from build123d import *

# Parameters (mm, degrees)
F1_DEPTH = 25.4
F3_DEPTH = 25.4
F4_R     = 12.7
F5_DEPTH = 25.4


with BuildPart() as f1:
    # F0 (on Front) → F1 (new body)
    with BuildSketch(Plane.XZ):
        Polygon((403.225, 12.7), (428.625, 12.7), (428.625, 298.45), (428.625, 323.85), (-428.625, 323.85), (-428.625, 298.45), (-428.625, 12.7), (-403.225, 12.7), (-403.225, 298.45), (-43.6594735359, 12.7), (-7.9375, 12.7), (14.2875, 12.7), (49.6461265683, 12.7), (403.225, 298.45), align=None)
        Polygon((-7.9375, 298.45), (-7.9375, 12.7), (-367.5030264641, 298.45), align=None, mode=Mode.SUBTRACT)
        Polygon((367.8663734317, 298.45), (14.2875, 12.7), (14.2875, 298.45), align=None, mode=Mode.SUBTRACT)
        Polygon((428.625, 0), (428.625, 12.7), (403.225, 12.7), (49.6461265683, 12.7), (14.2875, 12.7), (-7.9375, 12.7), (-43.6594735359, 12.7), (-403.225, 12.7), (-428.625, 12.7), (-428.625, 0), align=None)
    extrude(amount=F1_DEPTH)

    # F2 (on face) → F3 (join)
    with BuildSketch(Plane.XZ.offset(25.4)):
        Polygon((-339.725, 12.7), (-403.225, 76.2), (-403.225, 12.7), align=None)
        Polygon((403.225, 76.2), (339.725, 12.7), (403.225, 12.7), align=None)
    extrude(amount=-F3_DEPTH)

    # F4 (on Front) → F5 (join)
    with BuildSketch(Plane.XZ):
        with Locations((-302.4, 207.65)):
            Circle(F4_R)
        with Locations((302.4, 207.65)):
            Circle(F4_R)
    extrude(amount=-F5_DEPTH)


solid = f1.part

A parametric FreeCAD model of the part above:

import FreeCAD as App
import Part
import Sketcher
from FreeCAD import Vector
Q = App.Units.Quantity

doc = App.newDocument("Part")
body = doc.addObject("PartDesign::Body", "Body")

# Sketch on XZ plane
sketch1 = body.newObject("Sketcher::SketchObject", "Sketch")
sketch1.AttachmentSupport = (doc.getObject("XZ_Plane"), [""])
sketch1.MapMode = "FlatFace"
sketch1.addGeometry(Part.LineSegment(Vector(-429, 324, 0), Vector(-429, 0, 0)), False)
sketch1.addGeometry(Part.LineSegment(Vector(-429, 0, 0), Vector(429, 0, 0)), False)
sketch1.addGeometry(Part.LineSegment(Vector(429, 0, 0), Vector(429, 324, 0)), False)
sketch1.addGeometry(Part.LineSegment(Vector(429, 324, 0), Vector(-429, 324, 0)), False)
sketch1.addGeometry(Part.LineSegment(Vector(-403, 298, 0), Vector(-44, 13, 0)), False)
sketch1.addGeometry(Part.LineSegment(Vector(-44, 13, 0), Vector(-403, 13, 0)), False)
sketch1.addGeometry(Part.LineSegment(Vector(-403, 13, 0), Vector(-403, 298, 0)), False)
sketch1.addGeometry(Part.LineSegment(Vector(403, 298, 0), Vector(403, 13, 0)), False)
sketch1.addGeometry(Part.LineSegment(Vector(403, 13, 0), Vector(50, 13, 0)), False)
sketch1.addGeometry(Part.LineSegment(Vector(50, 13, 0), Vector(403, 298, 0)), False)
sketch1.addGeometry(Part.LineSegment(Vector(-8, 298, 0), Vector(-8, 13, 0)), False)
sketch1.addGeometry(Part.LineSegment(Vector(-8, 13, 0), Vector(-368, 298, 0)), False)
sketch1.addGeometry(Part.LineSegment(Vector(-368, 298, 0), Vector(-8, 298, 0)), False)
sketch1.addGeometry(Part.LineSegment(Vector(368, 298, 0), Vector(14, 13, 0)), False)
sketch1.addGeometry(Part.LineSegment(Vector(14, 13, 0), Vector(14, 298, 0)), False)
sketch1.addGeometry(Part.LineSegment(Vector(14, 298, 0), Vector(368, 298, 0)), False)
sketch1.addConstraint(Sketcher.Constraint("Coincident", 0, 2, 1, 1))
sketch1.addConstraint(Sketcher.Constraint("Coincident", 1, 2, 2, 1))
sketch1.addConstraint(Sketcher.Constraint("Coincident", 2, 2, 3, 1))
sketch1.addConstraint(Sketcher.Constraint("Coincident", 3, 2, 0, 1))
sketch1.addConstraint(Sketcher.Constraint("Coincident", 4, 2, 5, 1))
sketch1.addConstraint(Sketcher.Constraint("Coincident", 5, 2, 6, 1))
sketch1.addConstraint(Sketcher.Constraint("Coincident", 6, 2, 4, 1))
sketch1.addConstraint(Sketcher.Constraint("Coincident", 7, 2, 8, 1))
sketch1.addConstraint(Sketcher.Constraint("Coincident", 8, 2, 9, 1))
sketch1.addConstraint(Sketcher.Constraint("Coincident", 9, 2, 7, 1))
sketch1.addConstraint(Sketcher.Constraint("Coincident", 10, 2, 11, 1))
sketch1.addConstraint(Sketcher.Constraint("Coincident", 11, 2, 12, 1))
sketch1.addConstraint(Sketcher.Constraint("Coincident", 12, 2, 10, 1))
sketch1.addConstraint(Sketcher.Constraint("Coincident", 13, 2, 14, 1))
sketch1.addConstraint(Sketcher.Constraint("Coincident", 14, 2, 15, 1))
sketch1.addConstraint(Sketcher.Constraint("Coincident", 15, 2, 13, 1))
sketch1.addConstraint(Sketcher.Constraint("Vertical", 0))
sketch1.addConstraint(Sketcher.Constraint("Horizontal", 1))
sketch1.addConstraint(Sketcher.Constraint("Vertical", 2))
sketch1.addConstraint(Sketcher.Constraint("Horizontal", 3))
sketch1.addConstraint(Sketcher.Constraint("Horizontal", 5))
sketch1.addConstraint(Sketcher.Constraint("Vertical", 6))
sketch1.addConstraint(Sketcher.Constraint("Vertical", 7))
sketch1.addConstraint(Sketcher.Constraint("Horizontal", 8))
sketch1.addConstraint(Sketcher.Constraint("Vertical", 10))
sketch1.addConstraint(Sketcher.Constraint("Horizontal", 12))
sketch1.addConstraint(Sketcher.Constraint("Vertical", 14))
sketch1.addConstraint(Sketcher.Constraint("Horizontal", 15))
sketch1.addConstraint(Sketcher.Constraint("Symmetric", 0, 2, 1, 2, -1, 1))
sketch1.addConstraint(Sketcher.Constraint("Symmetric", 5, 2, 7, 2, -2))
sketch1.addConstraint(Sketcher.Constraint("Parallel", 4, 11))
sketch1.addConstraint(Sketcher.Constraint("Parallel", 9, 13))
sketch1.addConstraint(Sketcher.Constraint("Horizontal", 6, 2, 9, 2))
sketch1.addConstraint(Sketcher.Constraint("Horizontal", 8, 2, 10, 2))
sketch1.addConstraint(Sketcher.Constraint("Horizontal", 9, 2, 11, 2))
sketch1.addConstraint(Sketcher.Constraint("Horizontal", 10, 2, 13, 2))
sketch1.addConstraint(Sketcher.Constraint("Horizontal", 12, 2, 14, 2))
sketch1.addConstraint(Sketcher.Constraint("DistanceX", 0, 2, 5, 2, Q("1 in")))
sketch1.addConstraint(Sketcher.Constraint("DistanceY", 6, 2, 3, 2, Q("1 in")))
sketch1.addConstraint(Sketcher.Constraint("DistanceX", 1, 1, 1, 2, Q("33.75 in")))
sketch1.addConstraint(Sketcher.Constraint("DistanceY", 0, 2, 0, 1, Q("12.75 in")))
sketch1.addConstraint(Sketcher.Constraint("DistanceY", 6, 1, 6, 2, Q("11.25 in")))
sketch1.addConstraint(Sketcher.Constraint("DistanceX", 10, 2, -1, 1, Q("0.3125 in")))
sketch1.addConstraint(Sketcher.Constraint("DistanceX", -1, 1, 13, 2, Q("0.5625 in")))
sketch1.addConstraint(Sketcher.Constraint("DistanceX", 4, 2, 8, 2, Q("93.3056 mm")))
sketch1.addConstraint(Sketcher.Constraint("DistanceX", 5, 2, 5, 1, Q("359.565526 mm")))
pad1 = body.newObject("PartDesign::Pad", "Pad")
pad1.Profile = sketch1
pad1.Length = Q("1 in")

# Sketch on XZ plane
sketch2 = body.newObject("Sketcher::SketchObject", "Sketch001")
sketch2.AttachmentSupport = (doc.getObject("XZ_Plane"), [""])
sketch2.MapMode = "FlatFace"
sketch2.AttachmentOffset = App.Placement(Vector(0, 0, 1 * 25.4), App.Rotation())
sketch2.addGeometry(Part.LineSegment(Vector(-340, 13, 0), Vector(-403, 76, 0)), False)
sketch2.addGeometry(Part.LineSegment(Vector(-403, 76, 0), Vector(-403, 13, 0)), False)
sketch2.addGeometry(Part.LineSegment(Vector(-403, 13, 0), Vector(-340, 13, 0)), False)
sketch2.addGeometry(Part.LineSegment(Vector(403, 76, 0), Vector(340, 13, 0)), False)
sketch2.addGeometry(Part.LineSegment(Vector(340, 13, 0), Vector(403, 13, 0)), False)
sketch2.addGeometry(Part.LineSegment(Vector(403, 13, 0), Vector(403, 76, 0)), False)
sketch2.addConstraint(Sketcher.Constraint("Coincident", 0, 2, 1, 1))
sketch2.addConstraint(Sketcher.Constraint("Coincident", 1, 2, 2, 1))
sketch2.addConstraint(Sketcher.Constraint("Coincident", 2, 2, 0, 1))
sketch2.addConstraint(Sketcher.Constraint("Coincident", 3, 2, 4, 1))
sketch2.addConstraint(Sketcher.Constraint("Coincident", 4, 2, 5, 1))
sketch2.addConstraint(Sketcher.Constraint("Coincident", 5, 2, 3, 1))
sketch2.addConstraint(Sketcher.Constraint("Vertical", 1))
sketch2.addConstraint(Sketcher.Constraint("Horizontal", 2))
sketch2.addConstraint(Sketcher.Constraint("Horizontal", 4))
sketch2.addConstraint(Sketcher.Constraint("Vertical", 5))
sketch2.addConstraint(Sketcher.Constraint("Symmetric", 2, 2, 3, 2, -2))
sketch2.addConstraint(Sketcher.Constraint("Symmetric", 0, 2, 5, 2, -2))
sketch2.addConstraint(Sketcher.Constraint("Perpendicular", 0, 3))
sketch2.addConstraint(Sketcher.Constraint("DistanceX", 2, 1, 2, 2, Q("2.5 in")))
sketch2.addConstraint(Sketcher.Constraint("DistanceY", -1, 1, 0, 2, Q("3 in")))
sketch2.addConstraint(Sketcher.Constraint("DistanceX", 2, 2, 3, 2, Q("26.75 in")))
pad2 = body.newObject("PartDesign::Pad", "Pad001")
pad2.Profile = sketch2
pad2.Length = Q("1 in")
pad2.Reversed = True

# Sketch on XZ plane
sketch3 = body.newObject("Sketcher::SketchObject", "Sketch002")
sketch3.AttachmentSupport = (doc.getObject("XZ_Plane"), [""])
sketch3.MapMode = "FlatFace"
sketch3.addGeometry(Part.Circle(Vector(-302, 208, 0), Vector(0, 0, 1), 13), False)
sketch3.addGeometry(Part.Circle(Vector(302, 208, 0), Vector(0, 0, 1), 13), False)
sketch3.addConstraint(Sketcher.Constraint("Equal", 0, 1))
sketch3.addConstraint(Sketcher.Constraint("Symmetric", 0, 3, 1, 3, -2))
sketch3.addConstraint(Sketcher.Constraint("Diameter", 0, Q("1 in")))
sketch3.addConstraint(Sketcher.Constraint("DistanceX", 0, 3, -1, 1, Q("302.4 mm")))
sketch3.addConstraint(Sketcher.Constraint("DistanceY", -1, 1, 0, 3, Q("207.65 mm")))
pad3 = body.newObject("PartDesign::Pad", "Pad002")
pad3.Profile = sketch3
pad3.Length = Q("1 in")
pad3.Reversed = True

doc.recompute()
